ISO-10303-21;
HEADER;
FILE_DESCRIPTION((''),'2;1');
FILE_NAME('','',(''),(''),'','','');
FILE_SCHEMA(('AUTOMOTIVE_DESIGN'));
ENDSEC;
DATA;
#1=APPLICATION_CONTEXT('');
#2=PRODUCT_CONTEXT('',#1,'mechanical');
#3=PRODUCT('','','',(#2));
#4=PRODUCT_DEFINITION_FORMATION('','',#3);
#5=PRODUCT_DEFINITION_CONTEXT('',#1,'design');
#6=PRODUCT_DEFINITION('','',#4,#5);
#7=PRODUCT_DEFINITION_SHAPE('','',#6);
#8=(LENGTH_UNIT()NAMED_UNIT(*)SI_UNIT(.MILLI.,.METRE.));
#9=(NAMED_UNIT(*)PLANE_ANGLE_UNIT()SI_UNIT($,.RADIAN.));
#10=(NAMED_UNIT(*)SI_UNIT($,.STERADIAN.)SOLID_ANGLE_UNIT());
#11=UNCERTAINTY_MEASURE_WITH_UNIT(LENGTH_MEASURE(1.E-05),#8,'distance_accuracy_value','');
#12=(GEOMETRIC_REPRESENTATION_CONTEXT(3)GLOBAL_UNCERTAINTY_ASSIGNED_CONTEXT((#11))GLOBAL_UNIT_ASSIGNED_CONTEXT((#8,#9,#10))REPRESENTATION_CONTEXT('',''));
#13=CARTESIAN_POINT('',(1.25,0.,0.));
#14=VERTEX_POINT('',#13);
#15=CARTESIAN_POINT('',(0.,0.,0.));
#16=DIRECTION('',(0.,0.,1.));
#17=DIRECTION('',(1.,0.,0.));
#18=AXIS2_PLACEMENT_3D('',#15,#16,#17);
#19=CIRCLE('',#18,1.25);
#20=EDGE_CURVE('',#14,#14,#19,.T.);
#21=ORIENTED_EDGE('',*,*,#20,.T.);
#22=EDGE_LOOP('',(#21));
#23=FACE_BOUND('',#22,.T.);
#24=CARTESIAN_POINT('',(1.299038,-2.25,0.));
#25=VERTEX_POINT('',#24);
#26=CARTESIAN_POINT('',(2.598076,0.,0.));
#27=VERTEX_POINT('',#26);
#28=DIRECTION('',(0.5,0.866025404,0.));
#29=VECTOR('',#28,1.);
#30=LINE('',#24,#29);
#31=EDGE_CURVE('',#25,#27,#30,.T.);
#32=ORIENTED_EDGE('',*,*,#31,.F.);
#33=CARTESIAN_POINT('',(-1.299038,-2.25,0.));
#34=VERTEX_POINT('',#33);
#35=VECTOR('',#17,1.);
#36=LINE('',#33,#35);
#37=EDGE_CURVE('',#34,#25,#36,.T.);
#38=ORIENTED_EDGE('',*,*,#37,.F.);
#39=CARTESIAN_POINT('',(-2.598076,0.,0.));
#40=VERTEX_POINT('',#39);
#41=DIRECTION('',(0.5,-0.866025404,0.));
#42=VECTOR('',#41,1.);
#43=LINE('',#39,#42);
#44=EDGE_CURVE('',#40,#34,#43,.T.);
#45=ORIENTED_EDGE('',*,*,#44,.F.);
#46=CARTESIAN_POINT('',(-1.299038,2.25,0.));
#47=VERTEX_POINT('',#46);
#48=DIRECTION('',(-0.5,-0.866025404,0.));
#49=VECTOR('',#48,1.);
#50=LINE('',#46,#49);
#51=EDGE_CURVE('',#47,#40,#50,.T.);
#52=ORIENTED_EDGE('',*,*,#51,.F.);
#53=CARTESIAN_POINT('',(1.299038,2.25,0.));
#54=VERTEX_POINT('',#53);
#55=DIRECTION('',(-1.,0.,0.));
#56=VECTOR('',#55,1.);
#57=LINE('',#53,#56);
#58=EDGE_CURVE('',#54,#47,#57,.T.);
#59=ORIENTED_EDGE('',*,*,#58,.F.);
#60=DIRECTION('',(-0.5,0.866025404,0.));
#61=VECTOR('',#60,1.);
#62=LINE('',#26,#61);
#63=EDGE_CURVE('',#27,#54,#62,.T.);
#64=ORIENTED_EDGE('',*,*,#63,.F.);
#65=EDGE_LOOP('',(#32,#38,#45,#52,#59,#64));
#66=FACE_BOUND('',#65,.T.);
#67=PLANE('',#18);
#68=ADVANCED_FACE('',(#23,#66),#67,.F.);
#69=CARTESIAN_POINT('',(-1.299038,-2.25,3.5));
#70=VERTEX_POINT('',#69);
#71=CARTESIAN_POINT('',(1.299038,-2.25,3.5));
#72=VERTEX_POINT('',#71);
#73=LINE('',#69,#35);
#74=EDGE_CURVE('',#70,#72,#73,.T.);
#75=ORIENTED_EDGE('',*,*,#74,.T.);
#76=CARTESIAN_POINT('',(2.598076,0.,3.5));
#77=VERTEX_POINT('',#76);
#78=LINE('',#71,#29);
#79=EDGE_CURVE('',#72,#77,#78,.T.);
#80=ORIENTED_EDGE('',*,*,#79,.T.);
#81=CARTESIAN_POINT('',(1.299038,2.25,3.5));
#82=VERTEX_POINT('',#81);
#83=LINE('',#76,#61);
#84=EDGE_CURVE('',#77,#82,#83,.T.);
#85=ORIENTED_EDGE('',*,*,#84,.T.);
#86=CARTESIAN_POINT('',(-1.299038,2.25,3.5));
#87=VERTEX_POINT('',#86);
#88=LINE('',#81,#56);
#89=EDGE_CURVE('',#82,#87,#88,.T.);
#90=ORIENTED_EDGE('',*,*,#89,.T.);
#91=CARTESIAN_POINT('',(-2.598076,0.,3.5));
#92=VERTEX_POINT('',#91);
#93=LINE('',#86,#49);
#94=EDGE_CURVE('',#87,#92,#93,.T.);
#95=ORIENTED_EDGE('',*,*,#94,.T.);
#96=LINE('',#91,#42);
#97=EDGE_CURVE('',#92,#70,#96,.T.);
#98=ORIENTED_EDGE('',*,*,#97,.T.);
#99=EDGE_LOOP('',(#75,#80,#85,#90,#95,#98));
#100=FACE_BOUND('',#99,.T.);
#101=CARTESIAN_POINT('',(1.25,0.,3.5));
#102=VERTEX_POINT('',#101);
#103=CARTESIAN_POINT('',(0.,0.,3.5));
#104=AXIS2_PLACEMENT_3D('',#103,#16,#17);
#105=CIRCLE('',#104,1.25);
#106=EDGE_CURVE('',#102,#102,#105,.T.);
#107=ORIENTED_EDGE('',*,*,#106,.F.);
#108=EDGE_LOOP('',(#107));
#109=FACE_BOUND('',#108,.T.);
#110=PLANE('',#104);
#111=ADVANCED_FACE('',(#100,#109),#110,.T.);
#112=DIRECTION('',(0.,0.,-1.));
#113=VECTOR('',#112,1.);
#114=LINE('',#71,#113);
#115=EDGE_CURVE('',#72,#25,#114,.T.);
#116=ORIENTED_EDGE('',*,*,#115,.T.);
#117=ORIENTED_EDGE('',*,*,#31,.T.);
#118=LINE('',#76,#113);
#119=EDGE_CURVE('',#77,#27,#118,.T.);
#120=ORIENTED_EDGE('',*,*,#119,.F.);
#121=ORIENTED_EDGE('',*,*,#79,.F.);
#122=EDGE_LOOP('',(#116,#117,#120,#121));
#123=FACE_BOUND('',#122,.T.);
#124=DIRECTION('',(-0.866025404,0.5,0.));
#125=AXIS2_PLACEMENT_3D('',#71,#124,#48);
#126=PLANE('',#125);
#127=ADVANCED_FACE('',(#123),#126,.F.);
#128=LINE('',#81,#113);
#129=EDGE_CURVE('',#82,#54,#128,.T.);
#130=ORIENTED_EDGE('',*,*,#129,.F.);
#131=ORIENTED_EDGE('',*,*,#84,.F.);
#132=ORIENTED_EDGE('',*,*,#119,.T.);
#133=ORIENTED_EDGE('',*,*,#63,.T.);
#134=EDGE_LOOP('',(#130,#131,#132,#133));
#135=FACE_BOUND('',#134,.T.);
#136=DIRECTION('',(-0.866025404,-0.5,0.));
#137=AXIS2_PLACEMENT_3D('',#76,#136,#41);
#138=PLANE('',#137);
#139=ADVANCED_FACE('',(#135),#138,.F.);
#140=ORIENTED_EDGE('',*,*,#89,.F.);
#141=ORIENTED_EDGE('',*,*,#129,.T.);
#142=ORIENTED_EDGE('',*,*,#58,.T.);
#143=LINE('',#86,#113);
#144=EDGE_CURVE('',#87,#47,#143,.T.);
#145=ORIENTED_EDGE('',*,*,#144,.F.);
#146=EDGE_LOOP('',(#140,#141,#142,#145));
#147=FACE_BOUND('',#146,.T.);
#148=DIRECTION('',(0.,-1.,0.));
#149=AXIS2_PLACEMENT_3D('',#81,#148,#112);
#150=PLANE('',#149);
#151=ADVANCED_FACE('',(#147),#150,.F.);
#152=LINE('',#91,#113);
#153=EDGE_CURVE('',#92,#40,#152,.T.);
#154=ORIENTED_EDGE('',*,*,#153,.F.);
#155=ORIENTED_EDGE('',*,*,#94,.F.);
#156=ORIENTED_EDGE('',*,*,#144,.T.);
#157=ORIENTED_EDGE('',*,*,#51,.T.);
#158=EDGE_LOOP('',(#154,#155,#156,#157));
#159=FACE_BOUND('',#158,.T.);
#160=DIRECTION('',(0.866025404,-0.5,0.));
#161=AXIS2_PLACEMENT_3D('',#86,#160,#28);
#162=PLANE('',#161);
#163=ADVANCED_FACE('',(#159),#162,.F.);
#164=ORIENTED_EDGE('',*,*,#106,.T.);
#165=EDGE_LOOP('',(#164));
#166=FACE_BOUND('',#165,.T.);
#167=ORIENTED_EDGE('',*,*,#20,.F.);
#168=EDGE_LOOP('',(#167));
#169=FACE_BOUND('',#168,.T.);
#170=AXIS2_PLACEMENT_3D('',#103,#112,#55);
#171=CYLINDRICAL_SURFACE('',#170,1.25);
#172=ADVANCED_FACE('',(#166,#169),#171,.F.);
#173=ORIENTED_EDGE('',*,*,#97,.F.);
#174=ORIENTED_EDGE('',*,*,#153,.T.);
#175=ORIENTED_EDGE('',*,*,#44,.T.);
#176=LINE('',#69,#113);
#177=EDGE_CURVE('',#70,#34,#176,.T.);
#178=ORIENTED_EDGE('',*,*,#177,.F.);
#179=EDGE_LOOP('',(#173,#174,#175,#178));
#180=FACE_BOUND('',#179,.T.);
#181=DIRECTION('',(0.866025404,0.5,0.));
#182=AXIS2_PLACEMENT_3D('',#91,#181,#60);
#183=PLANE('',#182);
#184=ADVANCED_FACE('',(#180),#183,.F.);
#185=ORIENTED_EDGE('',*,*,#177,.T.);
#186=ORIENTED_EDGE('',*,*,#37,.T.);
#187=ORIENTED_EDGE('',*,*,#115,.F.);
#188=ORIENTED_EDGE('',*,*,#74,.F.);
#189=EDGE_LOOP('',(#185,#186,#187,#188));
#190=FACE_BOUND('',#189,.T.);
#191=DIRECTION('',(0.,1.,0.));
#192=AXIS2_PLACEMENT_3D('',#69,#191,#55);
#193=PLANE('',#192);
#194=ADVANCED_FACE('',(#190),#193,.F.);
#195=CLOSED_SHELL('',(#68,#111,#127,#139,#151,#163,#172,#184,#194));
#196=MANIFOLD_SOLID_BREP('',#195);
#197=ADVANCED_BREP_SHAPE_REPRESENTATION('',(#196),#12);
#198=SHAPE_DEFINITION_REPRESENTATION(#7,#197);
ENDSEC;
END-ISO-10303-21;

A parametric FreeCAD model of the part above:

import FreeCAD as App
import Part
import Sketcher

V = App.Vector
Q = App.Units.Quantity


def add_polygon(sketch, points):
    """Adds a closed chain of lines whose ends are joined by coincident constraints."""
    first, n = sketch.GeometryCount, len(points)
    for a, b in zip(points, points[1:] + points[:1]):
        sketch.addGeometry(Part.LineSegment(App.Vector(*a, 0), App.Vector(*b, 0)), False)
    for i in range(n):
        sketch.addConstraint(Sketcher.Constraint("Coincident", first + i, 2, first + (i + 1) % n, 1))

doc = App.newDocument("Part")
params = doc.addObject("Spreadsheet::Sheet", "Params")
for row, (alias, value) in enumerate([
    ("sketch1_diameter", "2.5 mm"),
    ("pad1_length", "3.5 mm"),
], start=1):
    params.set(f"A{row}", alias)
    params.set(f"B{row}", "=" + value)
    params.setAlias(f"B{row}", alias)

body = doc.addObject("PartDesign::Body", "Body")

sketch1 = body.newObject("Sketcher::SketchObject", "Sketch")
sketch1.AttachmentSupport = (doc.getObject("XY_Plane"), [""])
sketch1.MapMode = "FlatFace"
add_polygon(sketch1, [(-2.6, 0), (-1.3, -2.2), (1.3, -2.2), (2.6, 0), (1.3, 2.2), (-1.3, 2.2)])
sketch1.addGeometry(Part.Circle(V(0, 0, 0), V(0, 0, 1), 1.2), False)
sketch1.addConstraint([
    Sketcher.Constraint("Horizontal", 1),
    Sketcher.Constraint("Horizontal", 4),
    Sketcher.Constraint("Coincident", 6, 3, -1, 1),
    Sketcher.Constraint("Symmetric", 0, 2, 3, 2, -1, 1),
    Sketcher.Constraint("Symmetric", 2, 2, 5, 2, -1, 1),
    Sketcher.Constraint("PointOnObject", 2, 2, -1),
    Sketcher.Constraint("Parallel", 2, 5),
    Sketcher.Constraint("Vertical", 1, 2, 3, 2),
    Sketcher.Constraint("Diameter", 6, 2.5),
    Sketcher.Constraint("Angle", 0, Q("-60 deg")),
    Sketcher.Constraint("DistanceY", 1, 2, 3, 2, 4.5),
    Sketcher.Constraint("DistanceX", 1, 1, 1, 2, 2.598076),
])
sketch1.setExpression("Constraints[14]", "Params.sketch1_diameter")
pad1 = body.newObject("PartDesign::Pad", "Pad")
pad1.Profile = sketch1
pad1.setExpression("Length", "Params.pad1_length")

doc.recompute()
